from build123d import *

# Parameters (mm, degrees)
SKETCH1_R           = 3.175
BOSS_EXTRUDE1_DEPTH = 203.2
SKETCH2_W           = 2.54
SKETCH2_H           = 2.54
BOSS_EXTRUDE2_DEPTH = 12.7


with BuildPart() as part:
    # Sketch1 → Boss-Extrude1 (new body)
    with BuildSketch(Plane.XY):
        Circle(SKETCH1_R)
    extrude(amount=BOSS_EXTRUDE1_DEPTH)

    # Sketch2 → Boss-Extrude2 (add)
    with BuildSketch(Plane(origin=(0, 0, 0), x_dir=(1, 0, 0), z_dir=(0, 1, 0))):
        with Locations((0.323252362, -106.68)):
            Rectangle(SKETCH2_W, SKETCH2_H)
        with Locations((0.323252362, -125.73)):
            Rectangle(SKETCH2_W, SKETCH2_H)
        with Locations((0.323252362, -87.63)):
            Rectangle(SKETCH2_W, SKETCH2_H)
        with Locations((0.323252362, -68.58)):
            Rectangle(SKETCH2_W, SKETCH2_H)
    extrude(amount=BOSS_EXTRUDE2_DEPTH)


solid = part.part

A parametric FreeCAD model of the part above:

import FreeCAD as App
import Part
import Sketcher
from FreeCAD import Vector
Q = App.Units.Quantity

doc = App.newDocument("Part")
body = doc.addObject("PartDesign::Body", "Body")

# Sketch on XY plane
sketch1 = body.newObject("Sketcher::SketchObject", "Sketch")
sketch1.AttachmentSupport = (doc.getObject("XY_Plane"), [""])
sketch1.MapMode = "FlatFace"
sketch1.addGeometry(Part.Circle(Vector(0, 0, 0), Vector(0, 0, 1), 3.2), False)
sketch1.addConstraint([
    Sketcher.Constraint("Coincident", 0, 3, -1, 1),
    Sketcher.Constraint("Diameter", 0, Q("0.25 in")),
])
pad1 = body.newObject("PartDesign::Pad", "Pad")
pad1.Profile = sketch1
pad1.Length = Q("8 in")

# Sketch on XZ plane
sketch2 = body.newObject("Sketcher::SketchObject", "Sketch001")
sketch2.AttachmentSupport = (doc.getObject("XZ_Plane"), [""])
sketch2.MapMode = "FlatFace"
sketch2.addGeometry([
    Part.LineSegment(Vector(-0.9, 105.4, 0), Vector(-0.9, 108, 0)),  # 0
    Part.LineSegment(Vector(-0.9, 108, 0), Vector(1.6, 108, 0)),  # 1
    Part.LineSegment(Vector(1.6, 108, 0), Vector(1.6, 105.4, 0)),  # 2
    Part.LineSegment(Vector(1.6, 105.4, 0), Vector(-0.9, 105.4, 0)),  # 3
    Part.LineSegment(Vector(-0.9, 124.5, 0), Vector(-0.9, 127, 0)),  # 4
    Part.LineSegment(Vector(-0.9, 127, 0), Vector(1.6, 127, 0)),  # 5
    Part.LineSegment(Vector(1.6, 127, 0), Vector(1.6, 124.5, 0)),  # 6
    Part.LineSegment(Vector(1.6, 124.5, 0), Vector(-0.9, 124.5, 0)),  # 7
    Part.LineSegment(Vector(-0.9, 86.4, 0), Vector(-0.9, 88.9, 0)),  # 8
    Part.LineSegment(Vector(-0.9, 88.9, 0), Vector(1.6, 88.9, 0)),  # 9
    Part.LineSegment(Vector(1.6, 88.9, 0), Vector(1.6, 86.4, 0)),  # 10
    Part.LineSegment(Vector(1.6, 86.4, 0), Vector(-0.9, 86.4, 0)),  # 11
    Part.LineSegment(Vector(-0.9, 67.3, 0), Vector(-0.9, 69.8, 0)),  # 12
    Part.LineSegment(Vector(-0.9, 69.8, 0), Vector(1.6, 69.8, 0)),  # 13
    Part.LineSegment(Vector(1.6, 69.8, 0), Vector(1.6, 67.3, 0)),  # 14
    Part.LineSegment(Vector(1.6, 67.3, 0), Vector(-0.9, 67.3, 0)),  # 15
], False)
sketch2.addConstraint([
    Sketcher.Constraint("Coincident", 0, 2, 1, 1),
    Sketcher.Constraint("Coincident", 1, 2, 2, 1),
    Sketcher.Constraint("Coincident", 2, 2, 3, 1),
    Sketcher.Constraint("Coincident", 3, 2, 0, 1),
    Sketcher.Constraint("Coincident", 4, 2, 5, 1),
    Sketcher.Constraint("Coincident", 5, 2, 6, 1),
    Sketcher.Constraint("Coincident", 6, 2, 7, 1),
    Sketcher.Constraint("Coincident", 7, 2, 4, 1),
    Sketcher.Constraint("Coincident", 8, 2, 9, 1),
    Sketcher.Constraint("Coincident", 9, 2, 10, 1),
    Sketcher.Constraint("Coincident", 10, 2, 11, 1),
    Sketcher.Constraint("Coincident", 11, 2, 8, 1),
    Sketcher.Constraint("Coincident", 12, 2, 13, 1),
    Sketcher.Constraint("Coincident", 13, 2, 14, 1),
    Sketcher.Constraint("Coincident", 14, 2, 15, 1),
    Sketcher.Constraint("Coincident", 15, 2, 12, 1),
    Sketcher.Constraint("Vertical", 0),
    Sketcher.Constraint("Horizontal", 1),
    Sketcher.Constraint("Vertical", 2),
    Sketcher.Constraint("Horizontal", 3),
    Sketcher.Constraint("Vertical", 4),
    Sketcher.Constraint("Horizontal", 5),
    Sketcher.Constraint("Vertical", 6),
    Sketcher.Constraint("Horizontal", 7),
    Sketcher.Constraint("Vertical", 8),
    Sketcher.Constraint("Horizontal", 9),
    Sketcher.Constraint("Vertical", 10),
    Sketcher.Constraint("Horizontal", 11),
    Sketcher.Constraint("Vertical", 12),
    Sketcher.Constraint("Horizontal", 13),
    Sketcher.Constraint("Vertical", 14),
    Sketcher.Constraint("Horizontal", 15),
    Sketcher.Constraint("Vertical", 3, 2, 4, 2),
    Sketcher.Constraint("Vertical", 2, 2, 5, 2),
    Sketcher.Constraint("Vertical", 7, 2, 8, 2),
    Sketcher.Constraint("Vertical", 6, 2, 9, 2),
    Sketcher.Constraint("Vertical", 11, 2, 12, 2),
    Sketcher.Constraint("Vertical", 10, 2, 13, 2),
    Sketcher.Constraint("Equal", 15, 0),
    Sketcher.Constraint("Equal", 2, 4),
    Sketcher.Constraint("Equal", 6, 8),
    Sketcher.Constraint("Equal", 10, 12),
    Sketcher.Constraint("DistanceX", 1, 1, 1, 2, Q("0.1 in")),
    Sketcher.Constraint("DistanceY", -1, 1, 4, 2, Q("5 in")),
    Sketcher.Constraint("DistanceY", -1, 1, 8, 2, Q("3.5 in")),
    Sketcher.Constraint("DistanceY", 12, 2, 3, 2, Q("1.4 in")),
    Sketcher.Constraint("DistanceY", -1, 1, 0, 2, Q("4.25 in")),
    Sketcher.Constraint("DistanceX", 0, 2, -1, 1, Q("0.946748 mm")),
])
pad2 = body.newObject("PartDesign::Pad", "Pad001")
pad2.Profile = sketch2
pad2.Length = Q("0.5 in")
pad2.Reversed = True

doc.recompute()
